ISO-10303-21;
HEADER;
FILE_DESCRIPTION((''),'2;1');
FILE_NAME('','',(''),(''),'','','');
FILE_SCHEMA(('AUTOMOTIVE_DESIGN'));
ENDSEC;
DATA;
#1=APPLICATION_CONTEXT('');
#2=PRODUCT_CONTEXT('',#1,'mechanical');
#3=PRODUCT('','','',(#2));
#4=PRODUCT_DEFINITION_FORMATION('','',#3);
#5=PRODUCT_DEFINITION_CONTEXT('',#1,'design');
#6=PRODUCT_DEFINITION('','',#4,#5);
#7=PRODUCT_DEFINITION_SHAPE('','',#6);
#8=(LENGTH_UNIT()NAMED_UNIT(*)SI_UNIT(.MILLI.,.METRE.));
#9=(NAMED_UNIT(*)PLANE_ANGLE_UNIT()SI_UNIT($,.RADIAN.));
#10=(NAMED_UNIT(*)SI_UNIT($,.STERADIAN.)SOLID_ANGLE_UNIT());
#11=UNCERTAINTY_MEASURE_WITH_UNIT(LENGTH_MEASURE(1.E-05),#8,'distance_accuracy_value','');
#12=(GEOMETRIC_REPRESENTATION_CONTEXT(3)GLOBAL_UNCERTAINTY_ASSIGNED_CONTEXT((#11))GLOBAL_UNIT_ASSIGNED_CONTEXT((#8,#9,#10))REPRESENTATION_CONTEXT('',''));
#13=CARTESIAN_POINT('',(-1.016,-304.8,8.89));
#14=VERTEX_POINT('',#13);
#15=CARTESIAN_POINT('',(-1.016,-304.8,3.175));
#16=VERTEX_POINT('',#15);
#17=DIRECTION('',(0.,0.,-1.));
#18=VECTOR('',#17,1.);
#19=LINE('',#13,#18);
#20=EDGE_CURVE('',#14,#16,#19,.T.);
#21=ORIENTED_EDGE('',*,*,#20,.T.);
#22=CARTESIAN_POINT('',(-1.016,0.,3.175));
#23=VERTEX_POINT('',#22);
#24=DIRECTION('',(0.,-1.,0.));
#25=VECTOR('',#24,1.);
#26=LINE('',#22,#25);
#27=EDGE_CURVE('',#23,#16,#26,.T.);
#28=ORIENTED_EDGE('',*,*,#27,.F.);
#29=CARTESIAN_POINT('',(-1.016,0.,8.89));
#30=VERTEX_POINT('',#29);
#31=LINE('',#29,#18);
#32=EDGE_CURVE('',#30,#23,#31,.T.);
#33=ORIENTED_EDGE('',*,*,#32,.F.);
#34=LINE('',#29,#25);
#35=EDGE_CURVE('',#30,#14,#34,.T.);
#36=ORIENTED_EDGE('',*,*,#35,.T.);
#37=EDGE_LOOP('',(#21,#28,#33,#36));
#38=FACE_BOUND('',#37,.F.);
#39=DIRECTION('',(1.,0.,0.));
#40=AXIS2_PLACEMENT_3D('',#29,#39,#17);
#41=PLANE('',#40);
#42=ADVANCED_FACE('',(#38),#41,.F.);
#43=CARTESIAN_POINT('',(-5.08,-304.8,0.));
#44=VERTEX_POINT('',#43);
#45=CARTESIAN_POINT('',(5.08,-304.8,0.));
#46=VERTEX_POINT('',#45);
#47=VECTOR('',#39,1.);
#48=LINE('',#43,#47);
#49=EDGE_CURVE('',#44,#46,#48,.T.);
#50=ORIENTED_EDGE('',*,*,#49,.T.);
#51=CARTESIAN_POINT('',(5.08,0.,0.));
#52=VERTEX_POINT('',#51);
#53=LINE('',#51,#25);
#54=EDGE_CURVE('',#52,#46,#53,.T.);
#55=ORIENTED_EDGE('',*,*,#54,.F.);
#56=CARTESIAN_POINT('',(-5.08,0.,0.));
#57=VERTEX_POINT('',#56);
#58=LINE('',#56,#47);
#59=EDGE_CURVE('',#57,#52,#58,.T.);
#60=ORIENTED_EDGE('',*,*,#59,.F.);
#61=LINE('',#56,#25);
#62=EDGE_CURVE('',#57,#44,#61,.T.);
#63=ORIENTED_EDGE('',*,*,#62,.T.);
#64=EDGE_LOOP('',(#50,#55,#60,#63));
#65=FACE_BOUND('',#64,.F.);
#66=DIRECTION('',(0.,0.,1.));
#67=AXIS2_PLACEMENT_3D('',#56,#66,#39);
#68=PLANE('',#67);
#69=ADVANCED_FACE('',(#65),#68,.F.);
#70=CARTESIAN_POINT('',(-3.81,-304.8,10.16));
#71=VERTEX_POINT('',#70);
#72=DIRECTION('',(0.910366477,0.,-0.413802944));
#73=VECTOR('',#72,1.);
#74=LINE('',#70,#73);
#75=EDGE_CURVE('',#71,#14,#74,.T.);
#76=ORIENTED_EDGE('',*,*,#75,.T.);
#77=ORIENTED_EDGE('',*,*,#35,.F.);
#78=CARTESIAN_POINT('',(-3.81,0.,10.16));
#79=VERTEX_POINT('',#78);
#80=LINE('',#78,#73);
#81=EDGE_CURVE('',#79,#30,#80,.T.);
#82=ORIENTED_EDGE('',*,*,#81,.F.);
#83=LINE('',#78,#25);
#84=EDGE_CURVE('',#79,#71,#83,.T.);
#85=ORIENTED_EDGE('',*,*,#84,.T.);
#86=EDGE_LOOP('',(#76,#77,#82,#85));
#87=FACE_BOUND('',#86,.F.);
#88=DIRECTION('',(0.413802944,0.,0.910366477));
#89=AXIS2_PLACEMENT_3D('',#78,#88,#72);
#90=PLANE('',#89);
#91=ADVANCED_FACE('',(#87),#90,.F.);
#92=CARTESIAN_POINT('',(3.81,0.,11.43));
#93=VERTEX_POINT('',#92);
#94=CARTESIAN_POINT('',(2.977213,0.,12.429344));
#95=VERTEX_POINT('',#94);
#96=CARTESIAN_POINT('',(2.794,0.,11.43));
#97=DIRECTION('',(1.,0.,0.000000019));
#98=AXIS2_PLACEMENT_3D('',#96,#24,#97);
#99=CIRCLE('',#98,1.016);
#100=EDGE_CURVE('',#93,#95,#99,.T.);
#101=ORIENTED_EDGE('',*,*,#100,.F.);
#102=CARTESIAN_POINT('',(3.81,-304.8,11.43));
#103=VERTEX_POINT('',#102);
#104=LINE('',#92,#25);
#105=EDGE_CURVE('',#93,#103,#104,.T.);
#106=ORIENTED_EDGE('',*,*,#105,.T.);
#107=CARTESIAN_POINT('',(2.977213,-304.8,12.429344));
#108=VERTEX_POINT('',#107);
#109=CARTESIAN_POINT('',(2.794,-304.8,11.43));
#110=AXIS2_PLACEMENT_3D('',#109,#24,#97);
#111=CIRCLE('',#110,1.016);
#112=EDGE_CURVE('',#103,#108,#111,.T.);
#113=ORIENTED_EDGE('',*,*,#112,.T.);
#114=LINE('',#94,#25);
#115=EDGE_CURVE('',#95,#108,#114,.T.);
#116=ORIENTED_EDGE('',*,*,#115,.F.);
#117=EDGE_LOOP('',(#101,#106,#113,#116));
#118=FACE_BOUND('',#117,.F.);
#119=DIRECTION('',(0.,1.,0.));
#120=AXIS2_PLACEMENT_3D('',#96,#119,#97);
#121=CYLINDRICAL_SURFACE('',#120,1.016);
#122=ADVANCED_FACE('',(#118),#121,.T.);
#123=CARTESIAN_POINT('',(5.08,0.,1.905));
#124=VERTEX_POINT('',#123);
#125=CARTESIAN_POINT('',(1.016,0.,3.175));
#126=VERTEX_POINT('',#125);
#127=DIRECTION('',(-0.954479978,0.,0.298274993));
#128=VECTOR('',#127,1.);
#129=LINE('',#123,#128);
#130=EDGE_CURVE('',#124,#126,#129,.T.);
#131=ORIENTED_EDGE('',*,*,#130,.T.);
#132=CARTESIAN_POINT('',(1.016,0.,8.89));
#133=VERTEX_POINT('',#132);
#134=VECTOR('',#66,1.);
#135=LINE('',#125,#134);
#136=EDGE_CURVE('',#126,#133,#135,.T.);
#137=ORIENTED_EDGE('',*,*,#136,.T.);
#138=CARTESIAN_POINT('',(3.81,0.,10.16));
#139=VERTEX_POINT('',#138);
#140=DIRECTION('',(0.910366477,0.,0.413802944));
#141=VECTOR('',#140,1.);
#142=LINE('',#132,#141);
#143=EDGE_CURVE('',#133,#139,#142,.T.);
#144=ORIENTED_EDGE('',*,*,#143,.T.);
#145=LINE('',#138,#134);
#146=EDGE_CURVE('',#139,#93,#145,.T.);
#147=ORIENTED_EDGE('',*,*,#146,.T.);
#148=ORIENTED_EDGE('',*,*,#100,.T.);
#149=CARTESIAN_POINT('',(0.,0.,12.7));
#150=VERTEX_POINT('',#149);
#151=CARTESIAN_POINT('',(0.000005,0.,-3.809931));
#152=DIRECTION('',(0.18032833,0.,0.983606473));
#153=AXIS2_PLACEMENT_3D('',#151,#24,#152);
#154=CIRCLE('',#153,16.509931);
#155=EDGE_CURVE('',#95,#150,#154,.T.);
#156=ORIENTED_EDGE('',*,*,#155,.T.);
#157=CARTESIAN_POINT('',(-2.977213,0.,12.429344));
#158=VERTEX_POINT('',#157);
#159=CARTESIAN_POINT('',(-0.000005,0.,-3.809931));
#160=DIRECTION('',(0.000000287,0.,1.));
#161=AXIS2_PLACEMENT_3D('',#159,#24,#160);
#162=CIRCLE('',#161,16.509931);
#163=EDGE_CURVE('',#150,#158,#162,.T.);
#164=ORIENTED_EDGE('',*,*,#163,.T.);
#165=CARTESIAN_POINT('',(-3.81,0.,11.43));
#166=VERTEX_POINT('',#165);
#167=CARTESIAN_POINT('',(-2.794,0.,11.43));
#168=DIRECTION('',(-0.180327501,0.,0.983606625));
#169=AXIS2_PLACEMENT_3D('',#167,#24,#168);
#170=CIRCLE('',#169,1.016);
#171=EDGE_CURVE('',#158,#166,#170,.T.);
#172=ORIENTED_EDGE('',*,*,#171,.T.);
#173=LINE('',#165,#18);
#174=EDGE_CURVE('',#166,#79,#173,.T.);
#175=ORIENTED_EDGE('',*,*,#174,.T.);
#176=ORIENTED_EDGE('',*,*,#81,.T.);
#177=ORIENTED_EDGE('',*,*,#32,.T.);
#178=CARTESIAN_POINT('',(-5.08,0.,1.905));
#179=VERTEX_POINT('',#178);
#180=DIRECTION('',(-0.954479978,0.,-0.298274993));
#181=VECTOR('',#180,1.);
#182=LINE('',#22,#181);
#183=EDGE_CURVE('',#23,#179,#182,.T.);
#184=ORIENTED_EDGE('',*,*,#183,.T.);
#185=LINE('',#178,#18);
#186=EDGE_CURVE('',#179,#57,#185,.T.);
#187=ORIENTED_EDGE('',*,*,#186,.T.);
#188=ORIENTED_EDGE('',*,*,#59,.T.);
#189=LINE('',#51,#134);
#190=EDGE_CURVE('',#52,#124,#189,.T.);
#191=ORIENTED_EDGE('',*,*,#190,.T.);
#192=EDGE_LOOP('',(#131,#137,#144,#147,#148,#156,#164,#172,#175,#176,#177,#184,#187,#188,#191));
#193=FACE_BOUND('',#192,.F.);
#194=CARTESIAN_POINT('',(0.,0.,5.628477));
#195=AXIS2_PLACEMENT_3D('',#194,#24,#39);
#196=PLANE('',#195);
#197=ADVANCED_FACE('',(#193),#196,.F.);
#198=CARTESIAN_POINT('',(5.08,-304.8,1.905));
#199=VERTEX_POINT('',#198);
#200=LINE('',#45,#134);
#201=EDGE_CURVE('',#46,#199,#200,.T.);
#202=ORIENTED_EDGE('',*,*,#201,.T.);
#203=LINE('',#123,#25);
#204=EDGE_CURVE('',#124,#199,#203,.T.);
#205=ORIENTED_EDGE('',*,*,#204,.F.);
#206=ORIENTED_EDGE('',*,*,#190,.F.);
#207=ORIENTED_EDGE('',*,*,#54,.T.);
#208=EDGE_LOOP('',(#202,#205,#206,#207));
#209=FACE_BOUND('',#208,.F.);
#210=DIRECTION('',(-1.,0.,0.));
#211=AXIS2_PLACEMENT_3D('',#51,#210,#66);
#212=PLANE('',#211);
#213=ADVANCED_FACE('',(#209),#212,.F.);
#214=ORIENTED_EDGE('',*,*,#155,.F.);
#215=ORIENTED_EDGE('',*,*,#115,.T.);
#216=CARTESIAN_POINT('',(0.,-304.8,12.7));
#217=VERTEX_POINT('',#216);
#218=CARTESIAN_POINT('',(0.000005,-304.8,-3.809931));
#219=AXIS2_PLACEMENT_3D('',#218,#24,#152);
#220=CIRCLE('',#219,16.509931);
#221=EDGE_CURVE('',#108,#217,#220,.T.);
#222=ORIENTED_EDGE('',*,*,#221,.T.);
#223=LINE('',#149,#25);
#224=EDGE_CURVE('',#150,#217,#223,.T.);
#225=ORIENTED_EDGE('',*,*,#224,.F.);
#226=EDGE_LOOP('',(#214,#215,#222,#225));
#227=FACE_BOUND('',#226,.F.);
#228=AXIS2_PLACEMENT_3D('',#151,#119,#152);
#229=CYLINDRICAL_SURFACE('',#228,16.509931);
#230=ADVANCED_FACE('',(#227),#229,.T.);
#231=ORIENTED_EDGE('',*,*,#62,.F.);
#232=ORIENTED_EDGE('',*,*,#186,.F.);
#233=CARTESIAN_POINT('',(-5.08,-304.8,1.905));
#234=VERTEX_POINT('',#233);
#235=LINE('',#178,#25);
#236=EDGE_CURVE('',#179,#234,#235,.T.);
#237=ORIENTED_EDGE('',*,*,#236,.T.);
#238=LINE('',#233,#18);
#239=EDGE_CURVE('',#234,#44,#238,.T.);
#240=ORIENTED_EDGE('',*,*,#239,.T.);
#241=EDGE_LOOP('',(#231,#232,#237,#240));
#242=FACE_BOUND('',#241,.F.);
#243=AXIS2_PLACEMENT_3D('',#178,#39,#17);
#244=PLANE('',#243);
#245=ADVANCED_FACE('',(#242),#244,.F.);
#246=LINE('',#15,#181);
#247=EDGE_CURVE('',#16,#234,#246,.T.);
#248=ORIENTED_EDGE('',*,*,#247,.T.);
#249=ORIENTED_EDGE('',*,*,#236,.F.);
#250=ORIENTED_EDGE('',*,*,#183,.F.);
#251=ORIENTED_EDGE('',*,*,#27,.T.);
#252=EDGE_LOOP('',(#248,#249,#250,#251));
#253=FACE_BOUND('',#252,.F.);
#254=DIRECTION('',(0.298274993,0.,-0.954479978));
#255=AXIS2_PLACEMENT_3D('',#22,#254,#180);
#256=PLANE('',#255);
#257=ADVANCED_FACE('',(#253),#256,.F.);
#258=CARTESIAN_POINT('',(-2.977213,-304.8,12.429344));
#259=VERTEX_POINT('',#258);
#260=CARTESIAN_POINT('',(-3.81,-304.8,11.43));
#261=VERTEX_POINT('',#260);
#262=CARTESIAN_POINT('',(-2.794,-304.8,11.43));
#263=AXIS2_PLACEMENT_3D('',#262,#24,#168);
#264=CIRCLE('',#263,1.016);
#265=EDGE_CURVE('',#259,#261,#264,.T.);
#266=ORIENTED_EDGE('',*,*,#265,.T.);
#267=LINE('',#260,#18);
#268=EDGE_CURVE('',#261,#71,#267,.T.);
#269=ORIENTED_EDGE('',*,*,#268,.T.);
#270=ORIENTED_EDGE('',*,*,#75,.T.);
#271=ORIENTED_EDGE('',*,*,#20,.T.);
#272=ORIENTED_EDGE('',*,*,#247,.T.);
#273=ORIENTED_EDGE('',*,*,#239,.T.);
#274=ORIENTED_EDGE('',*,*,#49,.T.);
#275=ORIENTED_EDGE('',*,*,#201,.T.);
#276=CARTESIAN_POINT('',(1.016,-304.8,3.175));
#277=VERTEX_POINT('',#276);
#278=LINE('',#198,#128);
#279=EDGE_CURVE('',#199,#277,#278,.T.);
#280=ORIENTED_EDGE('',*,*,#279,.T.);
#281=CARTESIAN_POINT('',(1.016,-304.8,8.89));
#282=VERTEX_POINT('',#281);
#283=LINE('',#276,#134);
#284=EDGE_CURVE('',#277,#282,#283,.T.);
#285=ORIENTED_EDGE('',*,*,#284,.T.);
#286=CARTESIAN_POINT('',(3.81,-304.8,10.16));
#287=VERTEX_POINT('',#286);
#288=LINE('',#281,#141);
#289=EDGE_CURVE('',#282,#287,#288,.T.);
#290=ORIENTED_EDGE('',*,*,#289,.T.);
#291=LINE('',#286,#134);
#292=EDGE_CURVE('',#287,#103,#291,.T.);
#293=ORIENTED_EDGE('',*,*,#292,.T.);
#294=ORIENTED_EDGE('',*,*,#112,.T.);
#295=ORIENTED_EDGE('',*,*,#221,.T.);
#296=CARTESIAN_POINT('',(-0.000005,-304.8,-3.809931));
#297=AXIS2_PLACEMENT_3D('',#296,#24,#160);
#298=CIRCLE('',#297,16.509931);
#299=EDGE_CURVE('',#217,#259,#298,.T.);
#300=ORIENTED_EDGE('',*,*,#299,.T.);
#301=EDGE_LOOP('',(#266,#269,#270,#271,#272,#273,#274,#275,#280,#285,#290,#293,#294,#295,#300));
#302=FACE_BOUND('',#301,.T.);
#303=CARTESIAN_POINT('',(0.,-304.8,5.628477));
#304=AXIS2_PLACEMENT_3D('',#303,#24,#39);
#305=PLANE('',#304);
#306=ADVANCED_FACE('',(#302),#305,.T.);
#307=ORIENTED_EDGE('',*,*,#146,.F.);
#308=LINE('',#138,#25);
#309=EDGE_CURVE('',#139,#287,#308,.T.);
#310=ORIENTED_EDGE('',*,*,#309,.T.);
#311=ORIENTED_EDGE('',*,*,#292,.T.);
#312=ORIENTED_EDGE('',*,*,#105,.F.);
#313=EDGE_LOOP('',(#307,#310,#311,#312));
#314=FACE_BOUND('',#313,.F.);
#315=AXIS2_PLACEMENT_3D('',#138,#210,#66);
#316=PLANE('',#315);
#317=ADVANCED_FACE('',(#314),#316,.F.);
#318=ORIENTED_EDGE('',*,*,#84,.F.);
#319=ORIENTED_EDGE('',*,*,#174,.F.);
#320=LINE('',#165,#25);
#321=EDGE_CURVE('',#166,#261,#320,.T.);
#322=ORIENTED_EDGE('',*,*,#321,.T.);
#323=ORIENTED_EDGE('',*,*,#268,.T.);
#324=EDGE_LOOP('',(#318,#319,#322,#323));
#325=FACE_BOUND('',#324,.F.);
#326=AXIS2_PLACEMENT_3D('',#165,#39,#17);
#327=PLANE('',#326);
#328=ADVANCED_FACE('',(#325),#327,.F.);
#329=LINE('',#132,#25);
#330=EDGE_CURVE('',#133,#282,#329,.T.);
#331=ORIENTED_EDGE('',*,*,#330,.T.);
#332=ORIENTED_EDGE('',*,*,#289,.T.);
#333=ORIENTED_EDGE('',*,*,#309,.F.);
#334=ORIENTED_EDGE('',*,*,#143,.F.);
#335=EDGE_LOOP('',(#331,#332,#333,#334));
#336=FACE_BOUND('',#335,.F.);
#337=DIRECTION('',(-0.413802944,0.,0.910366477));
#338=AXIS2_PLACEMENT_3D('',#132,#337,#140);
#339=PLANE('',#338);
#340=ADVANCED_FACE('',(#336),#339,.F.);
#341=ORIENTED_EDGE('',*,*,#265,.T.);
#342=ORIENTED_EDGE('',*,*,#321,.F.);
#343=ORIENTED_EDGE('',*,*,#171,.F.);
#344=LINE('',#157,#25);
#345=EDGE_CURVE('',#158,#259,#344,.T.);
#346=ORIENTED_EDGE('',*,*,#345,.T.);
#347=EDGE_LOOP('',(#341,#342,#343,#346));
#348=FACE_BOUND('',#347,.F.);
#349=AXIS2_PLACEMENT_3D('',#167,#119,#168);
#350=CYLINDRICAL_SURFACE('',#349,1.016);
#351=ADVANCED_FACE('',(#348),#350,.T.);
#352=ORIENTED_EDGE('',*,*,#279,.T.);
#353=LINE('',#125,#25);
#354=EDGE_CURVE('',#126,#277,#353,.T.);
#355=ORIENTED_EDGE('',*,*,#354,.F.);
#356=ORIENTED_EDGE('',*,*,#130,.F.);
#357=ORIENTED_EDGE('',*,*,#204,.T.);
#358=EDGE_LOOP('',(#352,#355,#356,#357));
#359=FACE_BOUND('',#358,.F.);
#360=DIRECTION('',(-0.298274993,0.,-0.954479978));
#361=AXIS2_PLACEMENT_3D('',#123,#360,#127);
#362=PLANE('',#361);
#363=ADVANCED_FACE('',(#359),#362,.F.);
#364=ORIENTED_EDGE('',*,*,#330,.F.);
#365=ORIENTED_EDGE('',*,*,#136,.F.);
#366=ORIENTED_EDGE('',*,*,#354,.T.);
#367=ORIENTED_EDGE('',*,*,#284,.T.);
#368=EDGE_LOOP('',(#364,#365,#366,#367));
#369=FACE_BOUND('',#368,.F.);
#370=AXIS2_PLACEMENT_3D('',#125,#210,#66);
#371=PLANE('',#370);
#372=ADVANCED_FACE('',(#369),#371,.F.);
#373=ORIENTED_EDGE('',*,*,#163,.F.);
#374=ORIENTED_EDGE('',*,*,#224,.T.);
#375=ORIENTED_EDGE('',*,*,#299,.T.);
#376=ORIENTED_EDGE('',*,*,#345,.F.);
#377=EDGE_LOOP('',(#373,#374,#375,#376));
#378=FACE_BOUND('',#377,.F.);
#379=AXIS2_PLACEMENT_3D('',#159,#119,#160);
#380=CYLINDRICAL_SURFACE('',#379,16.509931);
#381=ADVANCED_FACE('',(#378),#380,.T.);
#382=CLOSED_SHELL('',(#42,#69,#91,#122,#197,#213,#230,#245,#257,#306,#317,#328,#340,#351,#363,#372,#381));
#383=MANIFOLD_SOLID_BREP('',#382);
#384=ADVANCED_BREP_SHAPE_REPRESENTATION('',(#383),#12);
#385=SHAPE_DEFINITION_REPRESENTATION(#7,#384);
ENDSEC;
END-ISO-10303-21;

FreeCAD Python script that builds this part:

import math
import FreeCAD as App
import Part
import Sketcher

V = App.Vector
Q = App.Units.Quantity

doc = App.newDocument("Part")
params = doc.addObject("Spreadsheet::Sheet", "Params")
for row, (alias, value) in enumerate([
    ("sketch1_radius", "0.04 in"),
    ("sketch1_radius2", "0.04 in"),
    ("sketch1_width", "0.4 in"),
    ("sketch1_height", "0.05 in"),
    ("sketch1_height2", "0.05 in"),
    ("pad1_length", "12 in"),
], start=1):
    params.set(f"A{row}", alias)
    params.set(f"B{row}", "=" + value)
    params.setAlias(f"B{row}", alias)

body = doc.addObject("PartDesign::Body", "Body")

# Sketch on XZ plane
sketch1 = body.newObject("Sketcher::SketchObject", "Sketch")
sketch1.AttachmentSupport = (doc.getObject("XZ_Plane"), [""])
sketch1.MapMode = "FlatFace"
sketch1.addGeometry(Part.LineSegment(V(-5.08, 0, 0), V(5.08, 0, 0)), False)
sketch1.addGeometry(Part.LineSegment(V(5.08, 0, 0), V(5.08, 1.905, 0)), False)
sketch1.addGeometry(Part.LineSegment(V(5.08, 1.905, 0), V(1.016, 3.175, 0)), False)
sketch1.addGeometry(Part.LineSegment(V(1.016, 3.175, 0), V(1.016, 8.89, 0)), False)
sketch1.addGeometry(Part.LineSegment(V(1.016, 8.89, 0), V(3.81, 10.16, 0)), False)
sketch1.addGeometry(Part.LineSegment(V(3.81, 10.16, 0), V(3.81, 11.43, 0)), False)
sketch1.addGeometry(Part.ArcOfCircle(Part.Circle(V(2.794, 11.43, 0), V(0, 0, 1), 1.016), math.radians(0.000001), math.radians(79.611164)), False)
sketch1.addGeometry(Part.ArcOfCircle(Part.Circle(V(0.000005, -3.809931, 0), V(0, 0, 1), 16.509931), math.radians(79.611115), math.radians(90.000016)), False)
sketch1.addGeometry(Part.ArcOfCircle(Part.Circle(V(-0.000005, -3.809931, 0), V(0, 0, 1), 16.509931), math.radians(89.999984), math.radians(100.388885)), False)
sketch1.addGeometry(Part.ArcOfCircle(Part.Circle(V(-2.794, 11.43, 0), V(0, 0, 1), 1.016), math.radians(100.388836), math.radians(179.999999)), False)
sketch1.addGeometry(Part.LineSegment(V(-3.81, 11.43, 0), V(-3.81, 10.16, 0)), False)
sketch1.addGeometry(Part.LineSegment(V(-3.81, 10.16, 0), V(-1.016, 8.89, 0)), False)
sketch1.addGeometry(Part.LineSegment(V(-1.016, 8.89, 0), V(-1.016, 3.175, 0)), False)
sketch1.addGeometry(Part.LineSegment(V(-1.016, 3.175, 0), V(-5.08, 1.905, 0)), False)
sketch1.addGeometry(Part.LineSegment(V(-5.08, 1.905, 0), V(-5.08, 0, 0)), False)
sketch1.addConstraint(Sketcher.Constraint("Coincident", 0, 2, 1, 1))
sketch1.addConstraint(Sketcher.Constraint("Coincident", 1, 2, 2, 1))
sketch1.addConstraint(Sketcher.Constraint("Coincident", 2, 2, 3, 1))
sketch1.addConstraint(Sketcher.Constraint("Coincident", 3, 2, 4, 1))
sketch1.addConstraint(Sketcher.Constraint("Coincident", 4, 2, 5, 1))
sketch1.addConstraint(Sketcher.Constraint("Coincident", 5, 2, 6, 1))
sketch1.addConstraint(Sketcher.Constraint("Coincident", 6, 2, 7, 1))
sketch1.addConstraint(Sketcher.Constraint("Coincident", 7, 2, 8, 1))
sketch1.addConstraint(Sketcher.Constraint("Coincident", 8, 2, 9, 1))
sketch1.addConstraint(Sketcher.Constraint("Coincident", 9, 2, 10, 1))
sketch1.addConstraint(Sketcher.Constraint("Coincident", 10, 2, 11, 1))
sketch1.addConstraint(Sketcher.Constraint("Coincident", 11, 2, 12, 1))
sketch1.addConstraint(Sketcher.Constraint("Coincident", 12, 2, 13, 1))
sketch1.addConstraint(Sketcher.Constraint("Coincident", 13, 2, 14, 1))
sketch1.addConstraint(Sketcher.Constraint("Coincident", 14, 2, 0, 1))
sketch1.addConstraint(Sketcher.Constraint("Horizontal", 0))
sketch1.addConstraint(Sketcher.Constraint("Vertical", 1))
sketch1.addConstraint(Sketcher.Constraint("Vertical", 3))
sketch1.addConstraint(Sketcher.Constraint("Vertical", 5))
sketch1.addConstraint(Sketcher.Constraint("Vertical", 10))
sketch1.addConstraint(Sketcher.Constraint("Vertical", 12))
sketch1.addConstraint(Sketcher.Constraint("Vertical", 14))
sketch1.addConstraint(Sketcher.Constraint("Coincident", 8, 3, 7, 3))
sketch1.addConstraint(Sketcher.Constraint("PointOnObject", 0, 2, -1))
sketch1.addConstraint(Sketcher.Constraint("PointOnObject", 7, 2, -2))
sketch1.addConstraint(Sketcher.Constraint("Radius", 6, Q("0.04 in")))
sketch1.addConstraint(Sketcher.Constraint("Radius", 9, Q("0.04 in")))
sketch1.addConstraint(Sketcher.Constraint("DistanceX", 0, 1, 0, 2, Q("0.4 in")))
sketch1.addConstraint(Sketcher.Constraint("DistanceY", 5, 1, 5, 2, Q("0.05 in")))
sketch1.addConstraint(Sketcher.Constraint("DistanceY", 10, 2, 10, 1, Q("0.05 in")))
sketch1.addConstraint(Sketcher.Constraint("DistanceX", -1, 1, 0, 2, Q("0.2 in")))
sketch1.addConstraint(Sketcher.Constraint("DistanceY", -1, 1, 4, 2, Q("0.4 in")))
sketch1.addConstraint(Sketcher.Constraint("DistanceY", -1, 1, 7, 2, Q("0.5 in")))
sketch1.addConstraint(Sketcher.Constraint("DistanceY", -1, 1, 10, 2, Q("0.4 in")))
sketch1.addConstraint(Sketcher.Constraint("DistanceX", 7, 3, 0, 2, Q("0.1999998 in")))
sketch1.addConstraint(Sketcher.Constraint("DistanceY", 3, 2, 6, 3, Q("0.1 in")))
sketch1.addConstraint(Sketcher.Constraint("DistanceY", 3, 2, 9, 3, Q("0.1 in")))
sketch1.addConstraint(Sketcher.Constraint("DistanceY", 3, 2, 5, 2, Q("0.1 in")))
sketch1.addConstraint(Sketcher.Constraint("DistanceY", 11, 2, 9, 3, Q("0.1 in")))
sketch1.addConstraint(Sketcher.Constraint("DistanceY", 1, 1, 1, 2, Q("0.075 in")))
sketch1.addConstraint(Sketcher.Constraint("DistanceY", 3, 1, 3, 2, Q("0.225 in")))
sketch1.addConstraint(Sketcher.Constraint("DistanceY", 12, 2, 12, 1, Q("0.225 in")))
sketch1.addConstraint(Sketcher.Constraint("DistanceY", 14, 2, 14, 1, Q("0.075 in")))
sketch1.addConstraint(Sketcher.Constraint("DistanceX", -1, 1, 6, 3, Q("0.11 in")))
sketch1.addConstraint(Sketcher.Constraint("DistanceX", -1, 1, 2, 2, Q("0.04 in")))
sketch1.addConstraint(Sketcher.Constraint("DistanceX", 11, 2, -1, 1, Q("0.04 in")))
sketch1.addConstraint(Sketcher.Constraint("DistanceX", -1, 1, 6, 2, 2.977213))
sketch1.addConstraint(Sketcher.Constraint("DistanceX", 8, 2, -1, 1, 2.977213))
sketch1.setExpression("Constraints[25]", "Params.sketch1_radius")
sketch1.setExpression("Constraints[26]", "Params.sketch1_radius2")
sketch1.setExpression("Constraints[27]", "Params.sketch1_width")
sketch1.setExpression("Constraints[28]", "Params.sketch1_height")
sketch1.setExpression("Constraints[29]", "Params.sketch1_height2")
pad1 = body.newObject("PartDesign::Pad", "Pad")
pad1.Profile = sketch1
pad1.setExpression("Length", "Params.pad1_length")

doc.recompute()
